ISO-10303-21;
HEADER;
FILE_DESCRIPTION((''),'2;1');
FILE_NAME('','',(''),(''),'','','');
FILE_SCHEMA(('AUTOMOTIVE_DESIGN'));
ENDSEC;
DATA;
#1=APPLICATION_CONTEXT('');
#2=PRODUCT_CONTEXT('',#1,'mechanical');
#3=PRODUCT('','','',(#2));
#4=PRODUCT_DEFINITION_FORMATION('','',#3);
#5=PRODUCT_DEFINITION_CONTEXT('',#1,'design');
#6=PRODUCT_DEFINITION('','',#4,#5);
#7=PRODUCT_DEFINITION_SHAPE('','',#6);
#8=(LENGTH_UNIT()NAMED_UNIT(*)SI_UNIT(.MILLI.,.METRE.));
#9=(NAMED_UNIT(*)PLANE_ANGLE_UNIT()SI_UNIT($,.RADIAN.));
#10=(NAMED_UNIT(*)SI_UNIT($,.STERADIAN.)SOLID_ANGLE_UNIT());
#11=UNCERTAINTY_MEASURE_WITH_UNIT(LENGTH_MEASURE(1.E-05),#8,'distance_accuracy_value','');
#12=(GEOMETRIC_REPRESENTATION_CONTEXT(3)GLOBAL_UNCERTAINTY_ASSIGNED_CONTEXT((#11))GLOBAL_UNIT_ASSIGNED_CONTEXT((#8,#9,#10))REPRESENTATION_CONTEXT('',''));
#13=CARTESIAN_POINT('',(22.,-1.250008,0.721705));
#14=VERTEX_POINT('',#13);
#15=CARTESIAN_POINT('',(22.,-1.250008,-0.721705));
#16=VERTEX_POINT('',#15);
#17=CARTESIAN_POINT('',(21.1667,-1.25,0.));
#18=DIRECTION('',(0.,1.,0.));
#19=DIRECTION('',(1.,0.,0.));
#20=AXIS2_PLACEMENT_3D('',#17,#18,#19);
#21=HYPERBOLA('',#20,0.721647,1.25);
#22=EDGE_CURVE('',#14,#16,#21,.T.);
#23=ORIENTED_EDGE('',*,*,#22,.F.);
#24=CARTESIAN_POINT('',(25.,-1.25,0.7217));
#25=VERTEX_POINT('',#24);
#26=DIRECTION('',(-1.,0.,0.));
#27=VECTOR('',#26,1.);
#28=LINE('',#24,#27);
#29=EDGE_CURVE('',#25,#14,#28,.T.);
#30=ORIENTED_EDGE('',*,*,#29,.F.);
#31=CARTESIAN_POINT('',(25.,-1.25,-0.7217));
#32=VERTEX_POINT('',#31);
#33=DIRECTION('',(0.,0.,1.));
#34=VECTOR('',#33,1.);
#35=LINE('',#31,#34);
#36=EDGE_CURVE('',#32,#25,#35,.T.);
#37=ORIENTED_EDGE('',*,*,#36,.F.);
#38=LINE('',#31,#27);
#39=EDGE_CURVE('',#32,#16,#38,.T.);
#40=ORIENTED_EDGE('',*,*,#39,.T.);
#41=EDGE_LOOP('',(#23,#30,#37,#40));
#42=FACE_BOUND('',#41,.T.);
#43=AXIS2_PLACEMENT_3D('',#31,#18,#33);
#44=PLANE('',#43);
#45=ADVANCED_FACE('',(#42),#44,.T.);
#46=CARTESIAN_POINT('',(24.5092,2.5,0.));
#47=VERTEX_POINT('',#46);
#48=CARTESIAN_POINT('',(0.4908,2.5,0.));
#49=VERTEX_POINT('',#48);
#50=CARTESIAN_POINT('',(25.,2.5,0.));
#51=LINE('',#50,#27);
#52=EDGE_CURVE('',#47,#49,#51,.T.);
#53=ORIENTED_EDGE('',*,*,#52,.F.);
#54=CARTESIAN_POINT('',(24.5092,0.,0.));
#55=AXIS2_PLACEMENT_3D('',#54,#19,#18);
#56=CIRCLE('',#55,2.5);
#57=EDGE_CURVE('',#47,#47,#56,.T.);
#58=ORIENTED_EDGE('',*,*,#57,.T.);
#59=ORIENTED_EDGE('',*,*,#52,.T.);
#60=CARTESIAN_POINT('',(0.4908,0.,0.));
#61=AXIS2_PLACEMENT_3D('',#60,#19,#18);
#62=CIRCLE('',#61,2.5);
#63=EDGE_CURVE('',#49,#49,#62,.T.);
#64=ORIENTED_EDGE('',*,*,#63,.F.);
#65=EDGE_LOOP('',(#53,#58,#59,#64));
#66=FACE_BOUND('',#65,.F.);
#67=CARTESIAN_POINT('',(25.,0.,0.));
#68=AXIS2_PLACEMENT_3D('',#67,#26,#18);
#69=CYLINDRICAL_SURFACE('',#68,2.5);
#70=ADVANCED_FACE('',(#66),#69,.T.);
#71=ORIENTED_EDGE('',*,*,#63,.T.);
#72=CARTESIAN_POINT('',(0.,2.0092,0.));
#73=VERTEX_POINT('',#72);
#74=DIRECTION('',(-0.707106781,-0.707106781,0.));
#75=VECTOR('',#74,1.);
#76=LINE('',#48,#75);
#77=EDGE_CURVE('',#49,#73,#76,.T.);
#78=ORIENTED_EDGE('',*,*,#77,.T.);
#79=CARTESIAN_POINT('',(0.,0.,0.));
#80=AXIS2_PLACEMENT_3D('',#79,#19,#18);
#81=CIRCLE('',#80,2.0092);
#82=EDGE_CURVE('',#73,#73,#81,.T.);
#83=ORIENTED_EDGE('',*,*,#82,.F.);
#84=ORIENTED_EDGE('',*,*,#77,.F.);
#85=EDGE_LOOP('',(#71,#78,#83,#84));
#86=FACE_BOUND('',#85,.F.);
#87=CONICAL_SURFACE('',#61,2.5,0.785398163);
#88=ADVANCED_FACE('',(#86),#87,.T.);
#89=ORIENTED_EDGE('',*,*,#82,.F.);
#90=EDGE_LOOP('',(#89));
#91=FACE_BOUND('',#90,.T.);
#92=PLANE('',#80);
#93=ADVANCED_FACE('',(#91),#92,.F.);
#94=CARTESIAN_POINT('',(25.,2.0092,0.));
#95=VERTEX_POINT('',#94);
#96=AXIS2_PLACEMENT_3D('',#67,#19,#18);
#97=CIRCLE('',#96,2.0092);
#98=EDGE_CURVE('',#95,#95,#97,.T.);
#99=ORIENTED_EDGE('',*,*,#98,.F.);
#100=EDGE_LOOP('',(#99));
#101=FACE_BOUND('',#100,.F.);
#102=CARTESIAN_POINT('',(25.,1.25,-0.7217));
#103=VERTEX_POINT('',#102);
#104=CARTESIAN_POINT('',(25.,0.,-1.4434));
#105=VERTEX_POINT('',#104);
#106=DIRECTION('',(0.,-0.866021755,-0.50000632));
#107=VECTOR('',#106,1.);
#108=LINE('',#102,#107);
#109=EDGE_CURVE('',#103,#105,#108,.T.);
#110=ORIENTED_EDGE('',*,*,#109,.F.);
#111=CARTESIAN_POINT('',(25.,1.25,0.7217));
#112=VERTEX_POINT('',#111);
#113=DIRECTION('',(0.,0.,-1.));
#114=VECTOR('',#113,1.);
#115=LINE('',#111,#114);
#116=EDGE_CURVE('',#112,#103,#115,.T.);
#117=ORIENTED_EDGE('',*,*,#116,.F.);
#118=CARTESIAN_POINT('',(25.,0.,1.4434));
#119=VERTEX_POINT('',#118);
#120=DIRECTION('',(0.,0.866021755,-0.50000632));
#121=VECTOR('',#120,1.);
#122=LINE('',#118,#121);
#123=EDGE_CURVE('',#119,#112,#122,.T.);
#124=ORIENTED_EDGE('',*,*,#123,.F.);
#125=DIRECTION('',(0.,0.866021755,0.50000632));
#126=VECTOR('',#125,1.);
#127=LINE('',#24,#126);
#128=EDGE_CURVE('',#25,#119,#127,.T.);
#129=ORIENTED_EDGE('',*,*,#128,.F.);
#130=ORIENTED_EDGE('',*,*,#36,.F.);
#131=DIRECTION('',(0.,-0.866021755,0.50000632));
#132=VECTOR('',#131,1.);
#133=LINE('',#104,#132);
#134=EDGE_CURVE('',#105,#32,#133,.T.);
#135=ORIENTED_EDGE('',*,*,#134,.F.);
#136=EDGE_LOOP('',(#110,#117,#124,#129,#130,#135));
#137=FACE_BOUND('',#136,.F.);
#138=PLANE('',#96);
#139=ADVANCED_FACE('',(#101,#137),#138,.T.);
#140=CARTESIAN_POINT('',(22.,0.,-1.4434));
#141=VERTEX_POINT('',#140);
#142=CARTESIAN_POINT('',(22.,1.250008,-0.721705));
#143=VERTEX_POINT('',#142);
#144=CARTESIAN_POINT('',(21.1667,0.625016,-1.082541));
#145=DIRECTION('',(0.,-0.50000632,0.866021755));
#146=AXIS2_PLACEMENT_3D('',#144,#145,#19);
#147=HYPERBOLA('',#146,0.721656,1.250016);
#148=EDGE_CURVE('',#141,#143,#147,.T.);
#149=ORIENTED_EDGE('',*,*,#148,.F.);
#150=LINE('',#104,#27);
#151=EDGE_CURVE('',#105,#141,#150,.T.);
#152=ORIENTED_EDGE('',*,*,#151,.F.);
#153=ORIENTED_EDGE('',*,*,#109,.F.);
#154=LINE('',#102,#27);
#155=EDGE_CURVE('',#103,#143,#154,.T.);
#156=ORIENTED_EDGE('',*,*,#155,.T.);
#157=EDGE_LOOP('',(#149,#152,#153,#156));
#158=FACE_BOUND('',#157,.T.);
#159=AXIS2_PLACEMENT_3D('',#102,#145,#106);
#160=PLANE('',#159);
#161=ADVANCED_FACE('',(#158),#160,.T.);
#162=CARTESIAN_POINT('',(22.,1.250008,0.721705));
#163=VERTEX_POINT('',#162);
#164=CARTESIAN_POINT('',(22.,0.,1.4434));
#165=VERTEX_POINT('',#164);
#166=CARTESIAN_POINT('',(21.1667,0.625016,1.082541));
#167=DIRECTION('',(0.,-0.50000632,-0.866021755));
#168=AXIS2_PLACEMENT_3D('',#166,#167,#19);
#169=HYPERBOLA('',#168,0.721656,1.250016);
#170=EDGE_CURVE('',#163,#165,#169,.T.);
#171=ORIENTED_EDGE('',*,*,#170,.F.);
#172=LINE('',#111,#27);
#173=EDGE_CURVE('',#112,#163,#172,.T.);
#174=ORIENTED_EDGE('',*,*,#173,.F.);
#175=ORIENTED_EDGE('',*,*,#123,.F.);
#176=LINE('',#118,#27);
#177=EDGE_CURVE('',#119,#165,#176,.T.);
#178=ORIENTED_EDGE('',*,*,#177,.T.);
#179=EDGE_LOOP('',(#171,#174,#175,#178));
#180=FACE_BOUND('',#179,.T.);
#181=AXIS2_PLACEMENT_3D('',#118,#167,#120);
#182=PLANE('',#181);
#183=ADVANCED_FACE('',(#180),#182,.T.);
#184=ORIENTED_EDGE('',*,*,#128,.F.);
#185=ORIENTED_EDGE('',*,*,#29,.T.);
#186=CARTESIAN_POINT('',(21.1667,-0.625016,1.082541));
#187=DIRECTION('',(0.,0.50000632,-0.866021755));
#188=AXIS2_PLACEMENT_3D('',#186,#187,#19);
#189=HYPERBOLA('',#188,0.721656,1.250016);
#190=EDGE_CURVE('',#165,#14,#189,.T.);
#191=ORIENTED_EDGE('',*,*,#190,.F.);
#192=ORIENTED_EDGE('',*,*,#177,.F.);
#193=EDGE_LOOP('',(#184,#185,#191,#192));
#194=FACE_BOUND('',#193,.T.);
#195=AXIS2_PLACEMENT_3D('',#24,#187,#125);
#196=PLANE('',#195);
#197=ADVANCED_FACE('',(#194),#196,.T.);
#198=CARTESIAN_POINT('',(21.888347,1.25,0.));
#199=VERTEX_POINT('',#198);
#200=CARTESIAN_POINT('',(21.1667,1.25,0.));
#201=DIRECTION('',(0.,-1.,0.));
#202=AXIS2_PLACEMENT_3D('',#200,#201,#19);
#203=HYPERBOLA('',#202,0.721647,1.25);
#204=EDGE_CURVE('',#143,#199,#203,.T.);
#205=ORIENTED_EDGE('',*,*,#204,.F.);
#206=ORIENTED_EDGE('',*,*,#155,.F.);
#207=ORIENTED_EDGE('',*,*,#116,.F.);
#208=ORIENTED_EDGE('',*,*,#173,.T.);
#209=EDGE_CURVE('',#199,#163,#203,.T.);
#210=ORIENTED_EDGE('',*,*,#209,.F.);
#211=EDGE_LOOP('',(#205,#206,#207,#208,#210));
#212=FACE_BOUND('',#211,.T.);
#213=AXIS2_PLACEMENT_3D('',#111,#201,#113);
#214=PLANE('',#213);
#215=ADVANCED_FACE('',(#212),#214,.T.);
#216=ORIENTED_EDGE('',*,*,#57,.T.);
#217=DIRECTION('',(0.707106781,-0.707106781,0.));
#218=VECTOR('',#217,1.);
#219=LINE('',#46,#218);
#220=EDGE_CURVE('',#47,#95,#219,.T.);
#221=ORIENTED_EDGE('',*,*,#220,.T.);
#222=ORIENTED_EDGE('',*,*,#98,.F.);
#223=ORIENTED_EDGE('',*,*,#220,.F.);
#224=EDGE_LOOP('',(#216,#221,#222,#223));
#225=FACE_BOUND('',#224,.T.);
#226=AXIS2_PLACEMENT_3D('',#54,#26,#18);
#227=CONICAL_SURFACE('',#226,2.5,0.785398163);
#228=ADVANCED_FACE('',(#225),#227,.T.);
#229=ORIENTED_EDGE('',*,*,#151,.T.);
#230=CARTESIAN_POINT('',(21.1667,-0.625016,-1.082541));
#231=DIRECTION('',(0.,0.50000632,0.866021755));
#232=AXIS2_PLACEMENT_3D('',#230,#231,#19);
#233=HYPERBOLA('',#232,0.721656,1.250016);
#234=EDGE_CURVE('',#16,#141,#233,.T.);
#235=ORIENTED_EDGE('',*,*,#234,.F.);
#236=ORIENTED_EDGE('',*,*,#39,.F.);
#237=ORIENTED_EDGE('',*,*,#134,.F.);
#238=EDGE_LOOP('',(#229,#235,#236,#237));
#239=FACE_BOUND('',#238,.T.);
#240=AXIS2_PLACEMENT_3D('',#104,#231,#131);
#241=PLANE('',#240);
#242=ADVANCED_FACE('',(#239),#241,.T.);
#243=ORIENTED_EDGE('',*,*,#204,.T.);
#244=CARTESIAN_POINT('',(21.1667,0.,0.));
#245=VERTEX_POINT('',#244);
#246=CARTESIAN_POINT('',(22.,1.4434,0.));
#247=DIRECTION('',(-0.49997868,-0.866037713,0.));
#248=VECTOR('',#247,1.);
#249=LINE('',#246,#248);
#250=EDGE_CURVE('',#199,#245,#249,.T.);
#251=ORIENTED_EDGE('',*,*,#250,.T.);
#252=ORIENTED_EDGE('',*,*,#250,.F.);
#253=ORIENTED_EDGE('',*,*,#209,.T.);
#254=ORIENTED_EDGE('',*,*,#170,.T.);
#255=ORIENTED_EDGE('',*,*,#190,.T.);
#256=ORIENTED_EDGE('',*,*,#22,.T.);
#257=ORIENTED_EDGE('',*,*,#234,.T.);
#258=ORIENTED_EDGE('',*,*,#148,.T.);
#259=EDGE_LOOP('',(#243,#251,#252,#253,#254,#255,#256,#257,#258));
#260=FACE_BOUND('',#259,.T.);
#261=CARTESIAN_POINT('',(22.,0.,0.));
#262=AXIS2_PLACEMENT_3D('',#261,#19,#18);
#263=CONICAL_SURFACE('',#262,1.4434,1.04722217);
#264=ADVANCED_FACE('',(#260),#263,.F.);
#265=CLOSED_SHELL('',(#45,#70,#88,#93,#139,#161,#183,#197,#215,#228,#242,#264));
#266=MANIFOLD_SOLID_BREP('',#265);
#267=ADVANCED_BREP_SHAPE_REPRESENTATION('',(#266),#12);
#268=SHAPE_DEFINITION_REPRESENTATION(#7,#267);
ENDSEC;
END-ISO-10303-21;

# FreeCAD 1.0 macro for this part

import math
import FreeCAD as App
import Part
import Sketcher
Q = App.Units.Quantity


def edges_at(feature, points):
    """Names of the edges that pass closest to the given points."""
    edges = feature.Shape.Edges
    near = lambda p: min(range(len(edges)), key=lambda i: edges[i].distToShape(Part.Vertex(*p))[0])
    return sorted({f"Edge{near(p) + 1}" for p in points})

doc = App.newDocument("Part")
body = doc.addObject("PartDesign::Body", "Body")

# Sketch on XY plane
sketch1 = doc.addObject("Sketcher::SketchObject", "Sketch")
body.addObject(sketch1)
sketch1.AttachmentSupport = (doc.XY_Plane, [""])
sketch1.MapMode = "FlatFace"
sketch1.addGeometry(Part.LineSegment(App.Vector(0, 2.5, 0), App.Vector(0, 0, 0)), False)
sketch1.addGeometry(Part.LineSegment(App.Vector(0, 0, 0), App.Vector(21.1667, 0, 0)), False)
sketch1.addGeometry(Part.LineSegment(App.Vector(21.1667, 0, 0), App.Vector(22, 1.4434, 0)), False)
sketch1.addGeometry(Part.LineSegment(App.Vector(22, 1.4434, 0), App.Vector(25, 1.4434, 0)), False)
sketch1.addGeometry(Part.LineSegment(App.Vector(25, 1.4434, 0), App.Vector(25, 2.5, 0)), False)
sketch1.addGeometry(Part.LineSegment(App.Vector(25, 2.5, 0), App.Vector(0, 2.5, 0)), False)
sketch1.addConstraint(Sketcher.Constraint("Coincident", 0, 2, 1, 1))
sketch1.addConstraint(Sketcher.Constraint("Coincident", 1, 2, 2, 1))
sketch1.addConstraint(Sketcher.Constraint("Coincident", 2, 2, 3, 1))
sketch1.addConstraint(Sketcher.Constraint("Coincident", 3, 2, 4, 1))
sketch1.addConstraint(Sketcher.Constraint("Coincident", 4, 2, 5, 1))
sketch1.addConstraint(Sketcher.Constraint("Coincident", 5, 2, 0, 1))
sketch1.addConstraint(Sketcher.Constraint("Vertical", 0))
sketch1.addConstraint(Sketcher.Constraint("Horizontal", 1))
sketch1.addConstraint(Sketcher.Constraint("Horizontal", 3))
sketch1.addConstraint(Sketcher.Constraint("Vertical", 4))
sketch1.addConstraint(Sketcher.Constraint("Horizontal", 5))
sketch1.addConstraint(Sketcher.Constraint("Coincident", 0, 2, -1, 1))
sketch1.addConstraint(Sketcher.Constraint("DistanceX", 3, 1, 3, 2, Q("3 mm")))
sketch1.addConstraint(Sketcher.Constraint("DistanceX", 5, 2, 5, 1, Q("25 mm")))
sketch1.addConstraint(Sketcher.Constraint("DistanceY", 0, 2, 0, 1, Q("2.5 mm")))
sketch1.addConstraint(Sketcher.Constraint("DistanceX", 1, 1, 1, 2, Q("21.1667 mm")))
sketch1.addConstraint(Sketcher.Constraint("DistanceY", 4, 1, 4, 2, Q("1.0566 mm")))
revolution = doc.addObject("PartDesign::Revolution", "Revolution")
body.addObject(revolution)
revolution.Profile = sketch1
revolution.ReferenceAxis = (sketch1, ["H_Axis"])
revolution.Angle = 360
doc.recompute()

chamfer = doc.addObject("PartDesign::Chamfer", "Chamfer")
body.addObject(chamfer)
chamfer.Base = (revolution, edges_at(revolution, [(25, -2.5, 0)]))
chamfer.Size = 0.4908

# Sketch on YZ plane
sketch2 = doc.addObject("Sketcher::SketchObject", "Sketch001")
body.addObject(sketch2)
sketch2.AttachmentSupport = (doc.YZ_Plane, [""])
sketch2.MapMode = "FlatFace"
sketch2.AttachmentOffset = App.Placement(App.Vector(0, 0, 25), App.Rotation())
sketch2.addGeometry(Part.LineSegment(App.Vector(1.25, -0.7217, 0), App.Vector(0, -1.4434, 0)), False)
sketch2.addGeometry(Part.ArcOfCircle(Part.Circle(App.Vector(0, 0, 0), App.Vector(0, 0, 1), 1.4434), math.radians(-90), math.radians(-30.000418)), False)
sketch2.addGeometry(Part.ArcOfCircle(Part.Circle(App.Vector(0, 0, 0), App.Vector(0, 0, 1), 1.4434), math.radians(-149.999582), math.radians(-90)), False)
sketch2.addGeometry(Part.LineSegment(App.Vector(0, -1.4434, 0), App.Vector(-1.25, -0.7217, 0)), False)
sketch2.addGeometry(Part.LineSegment(App.Vector(1.25, 0.7217, 0), App.Vector(1.25, -0.7217, 0)), False)
sketch2.addGeometry(Part.ArcOfCircle(Part.Circle(App.Vector(0, 0, 0), App.Vector(0, 0, 1), 1.4434), math.radians(-30.000418), math.radians(30.000418)), False)
sketch2.addGeometry(Part.ArcOfCircle(Part.Circle(App.Vector(0, 0, 0), App.Vector(0, 0, 1), 1.4434), math.radians(149.999582), math.radians(210.000418)), False)
sketch2.addGeometry(Part.LineSegment(App.Vector(-1.25, 0.7217, 0), App.Vector(-1.25, -0.7217, 0)), False)
sketch2.addGeometry(Part.LineSegment(App.Vector(0, 1.4434, 0), App.Vector(1.25, 0.7217, 0)), False)
sketch2.addGeometry(Part.ArcOfCircle(Part.Circle(App.Vector(0, 0, 0), App.Vector(0, 0, 1), 1.4434), math.radians(30.000418), math.radians(90)), False)
sketch2.addGeometry(Part.ArcOfCircle(Part.Circle(App.Vector(0, 0, 0), App.Vector(0, 0, 1), 1.4434), math.radians(90), math.radians(149.999582)), False)
sketch2.addGeometry(Part.LineSegment(App.Vector(0, 1.4434, 0), App.Vector(-1.25, 0.7217, 0)), False)
sketch2.addConstraint(Sketcher.Constraint("Coincident", 0, 1, 1, 2))
sketch2.addConstraint(Sketcher.Constraint("Coincident", 1, 1, 0, 2))
sketch2.addConstraint(Sketcher.Constraint("Coincident", 2, 1, 3, 2))
sketch2.addConstraint(Sketcher.Constraint("Coincident", 3, 1, 2, 2))
sketch2.addConstraint(Sketcher.Constraint("Coincident", 4, 1, 5, 2))
sketch2.addConstraint(Sketcher.Constraint("Coincident", 5, 1, 4, 2))
sketch2.addConstraint(Sketcher.Constraint("Coincident", 6, 1, 7, 1))
sketch2.addConstraint(Sketcher.Constraint("Coincident", 7, 2, 6, 2))
sketch2.addConstraint(Sketcher.Constraint("Coincident", 8, 1, 9, 2))
sketch2.addConstraint(Sketcher.Constraint("Coincident", 9, 1, 8, 2))
sketch2.addConstraint(Sketcher.Constraint("Coincident", 10, 1, 11, 1))
sketch2.addConstraint(Sketcher.Constraint("Coincident", 11, 2, 10, 2))
sketch2.addConstraint(Sketcher.Constraint("Vertical", 4))
sketch2.addConstraint(Sketcher.Constraint("Vertical", 7))
sketch2.addConstraint(Sketcher.Constraint("Coincident", 1, 3, -1, 1))
sketch2.addConstraint(Sketcher.Constraint("Coincident", 2, 3, -1, 1))
sketch2.addConstraint(Sketcher.Constraint("Coincident", 5, 3, -1, 1))
sketch2.addConstraint(Sketcher.Constraint("Coincident", 6, 3, -1, 1))
sketch2.addConstraint(Sketcher.Constraint("Coincident", 9, 3, -1, 1))
sketch2.addConstraint(Sketcher.Constraint("Coincident", 10, 3, -1, 1))
sketch2.addConstraint(Sketcher.Constraint("Coincident", 3, 1, 1, 1))
sketch2.addConstraint(Sketcher.Constraint("Coincident", 5, 1, 0, 1))
sketch2.addConstraint(Sketcher.Constraint("Coincident", 7, 2, 2, 1))
sketch2.addConstraint(Sketcher.Constraint("Coincident", 9, 1, 4, 1))
sketch2.addConstraint(Sketcher.Constraint("Coincident", 10, 1, 8, 1))
sketch2.addConstraint(Sketcher.Constraint("PointOnObject", 1, 1, -2))
sketch2.addConstraint(Sketcher.Constraint("PointOnObject", 8, 1, -2))
sketch2.addConstraint(Sketcher.Constraint("Parallel", 3, 8))
sketch2.addConstraint(Sketcher.Constraint("Parallel", 0, 11))
sketch2.addConstraint(Sketcher.Constraint("Angle", 0, Q("-149.9996 deg")))
sketch2.addConstraint(Sketcher.Constraint("Radius", 1, Q("1.4434 mm")))
pad1 = doc.addObject("PartDesign::Pad", "Pad")
body.addObject(pad1)
pad1.Profile = sketch2
pad1.Type = "UpToFirst"
pad1.Reversed = True
doc.recompute()

chamfer2 = doc.addObject("PartDesign::Chamfer", "Chamfer001")
body.addObject(chamfer2)
chamfer2.Base = (pad1, edges_at(pad1, [(0, -2.5, 0)]))
chamfer2.Size = 0.4908

doc.recompute()
